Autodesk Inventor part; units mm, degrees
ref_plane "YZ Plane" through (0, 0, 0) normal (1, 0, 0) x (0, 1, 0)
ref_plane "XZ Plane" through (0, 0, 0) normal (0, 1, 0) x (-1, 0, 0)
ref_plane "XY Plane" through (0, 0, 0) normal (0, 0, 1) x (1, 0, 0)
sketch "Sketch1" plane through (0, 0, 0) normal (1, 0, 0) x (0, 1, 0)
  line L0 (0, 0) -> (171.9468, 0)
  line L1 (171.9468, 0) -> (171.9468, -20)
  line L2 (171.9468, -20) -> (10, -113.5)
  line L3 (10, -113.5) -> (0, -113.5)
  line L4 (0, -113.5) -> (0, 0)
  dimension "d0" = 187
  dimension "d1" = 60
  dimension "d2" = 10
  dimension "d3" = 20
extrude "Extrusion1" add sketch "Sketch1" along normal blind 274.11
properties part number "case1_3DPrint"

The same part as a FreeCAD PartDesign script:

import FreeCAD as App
import Part
import Sketcher
from FreeCAD import Vector
Q = App.Units.Quantity

doc = App.newDocument("Part")
params = doc.addObject("Spreadsheet::Sheet", "Params")
for row, (alias, value) in enumerate([
    ("sketch1_width", "10 mm"),
    ("sketch1_height", "20 mm"),
    ("sketch1_length", "187 mm"),
    ("pad1_length", "274.11 mm"),
], start=1):
    params.set(f"A{row}", alias)
    params.set(f"B{row}", "=" + value)
    params.setAlias(f"B{row}", alias)

body = doc.addObject("PartDesign::Body", "Body")

# Sketch on YZ plane
sketch1 = doc.addObject("Sketcher::SketchObject", "Sketch")
body.addObject(sketch1)
sketch1.AttachmentSupport = (doc.YZ_Plane, [""])
sketch1.MapMode = "FlatFace"
sketch1.addGeometry([
    Part.LineSegment(Vector(172, 0, 0), Vector(0, 0, 0)),  # 0
    Part.LineSegment(Vector(0, 0, 0), Vector(0, -114, 0)),  # 1
    Part.LineSegment(Vector(0, -114, 0), Vector(10, -114, 0)),  # 2
    Part.LineSegment(Vector(10, -114, 0), Vector(172, -20, 0)),  # 3
    Part.LineSegment(Vector(172, -20, 0), Vector(172, 0, 0)),  # 4
], False)
sketch1.addConstraint([
    Sketcher.Constraint("Coincident", 0, 2, 1, 1),
    Sketcher.Constraint("Coincident", 1, 2, 2, 1),
    Sketcher.Constraint("Coincident", 2, 2, 3, 1),
    Sketcher.Constraint("Coincident", 3, 2, 4, 1),
    Sketcher.Constraint("Coincident", 4, 2, 0, 1),
    Sketcher.Constraint("Horizontal", 0),
    Sketcher.Constraint("Vertical", 1),
    Sketcher.Constraint("Horizontal", 2),
    Sketcher.Constraint("Vertical", 4),
    Sketcher.Constraint("Coincident", 0, 2, -1, 1),
    Sketcher.Constraint("DistanceX", 2, 1, 2, 2, 10.0),
    Sketcher.Constraint("DistanceY", 4, 1, 4, 2, 20.0),
    Sketcher.Constraint("Distance", 3, 187.0),
    Sketcher.Constraint("Angle", 3, Q("30 deg")),
])
sketch1.setExpression("Constraints[10]", "Params.sketch1_width")
sketch1.setExpression("Constraints[11]", "Params.sketch1_height")
sketch1.setExpression("Constraints[12]", "Params.sketch1_length")
pad1 = doc.addObject("PartDesign::Pad", "Pad")
body.addObject(pad1)
pad1.Profile = sketch1
pad1.setExpression("Length", "Params.pad1_length")

doc.recompute()
